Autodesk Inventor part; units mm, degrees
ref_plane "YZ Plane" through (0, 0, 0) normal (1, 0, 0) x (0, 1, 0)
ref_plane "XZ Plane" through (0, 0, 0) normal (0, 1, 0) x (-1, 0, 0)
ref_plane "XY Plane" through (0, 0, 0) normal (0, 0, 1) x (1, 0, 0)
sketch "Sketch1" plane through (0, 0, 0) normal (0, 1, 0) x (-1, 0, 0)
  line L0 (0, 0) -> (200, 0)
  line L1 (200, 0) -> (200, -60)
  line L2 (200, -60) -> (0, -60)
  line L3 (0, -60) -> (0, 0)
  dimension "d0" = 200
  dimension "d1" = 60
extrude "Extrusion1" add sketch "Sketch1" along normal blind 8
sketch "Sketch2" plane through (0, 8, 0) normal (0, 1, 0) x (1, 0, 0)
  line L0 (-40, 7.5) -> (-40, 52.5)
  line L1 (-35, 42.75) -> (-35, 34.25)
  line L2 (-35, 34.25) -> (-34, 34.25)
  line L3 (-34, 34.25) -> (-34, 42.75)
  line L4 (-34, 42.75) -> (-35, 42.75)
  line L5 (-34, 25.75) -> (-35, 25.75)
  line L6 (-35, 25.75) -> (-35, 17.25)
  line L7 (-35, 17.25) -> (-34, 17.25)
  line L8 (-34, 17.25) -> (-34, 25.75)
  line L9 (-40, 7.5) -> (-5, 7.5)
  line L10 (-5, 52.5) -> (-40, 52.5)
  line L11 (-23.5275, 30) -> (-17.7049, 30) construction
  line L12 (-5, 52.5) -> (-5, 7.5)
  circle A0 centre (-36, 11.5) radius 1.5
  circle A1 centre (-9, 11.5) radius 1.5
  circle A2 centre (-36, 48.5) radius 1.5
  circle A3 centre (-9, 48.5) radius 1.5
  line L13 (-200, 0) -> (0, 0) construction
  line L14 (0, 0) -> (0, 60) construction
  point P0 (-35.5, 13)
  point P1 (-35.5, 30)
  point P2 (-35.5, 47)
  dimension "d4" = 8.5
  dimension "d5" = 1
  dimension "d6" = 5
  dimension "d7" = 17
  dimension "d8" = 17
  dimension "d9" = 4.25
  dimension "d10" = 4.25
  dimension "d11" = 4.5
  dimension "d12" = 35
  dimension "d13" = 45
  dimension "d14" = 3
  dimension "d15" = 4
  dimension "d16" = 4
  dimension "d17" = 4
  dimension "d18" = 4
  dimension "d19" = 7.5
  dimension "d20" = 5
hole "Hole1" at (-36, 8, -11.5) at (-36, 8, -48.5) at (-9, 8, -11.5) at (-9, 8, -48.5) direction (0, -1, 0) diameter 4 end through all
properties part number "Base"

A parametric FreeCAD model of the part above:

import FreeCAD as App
import Part
import Sketcher
from FreeCAD import Vector
Q = App.Units.Quantity

doc = App.newDocument("Part")
body = doc.addObject("PartDesign::Body", "Body")

sketch1 = body.newObject("Sketcher::SketchObject", "Sketch")
sketch1.AttachmentSupport = (doc.getObject("XZ_Plane"), [""])
sketch1.MapMode = "FlatFace"
sketch1.addGeometry(Part.LineSegment(Vector(-200, 0, 0), Vector(0, 0, 0)), False)
sketch1.addGeometry(Part.LineSegment(Vector(0, 0, 0), Vector(0, -60, 0)), False)
sketch1.addGeometry(Part.LineSegment(Vector(0, -60, 0), Vector(-200, -60, 0)), False)
sketch1.addGeometry(Part.LineSegment(Vector(-200, -60, 0), Vector(-200, 0, 0)), False)
sketch1.addConstraint(Sketcher.Constraint("Coincident", 0, 2, 1, 1))
sketch1.addConstraint(Sketcher.Constraint("Coincident", 1, 2, 2, 1))
sketch1.addConstraint(Sketcher.Constraint("Coincident", 2, 2, 3, 1))
sketch1.addConstraint(Sketcher.Constraint("Coincident", 3, 2, 0, 1))
sketch1.addConstraint(Sketcher.Constraint("Horizontal", 0))
sketch1.addConstraint(Sketcher.Constraint("Vertical", 1))
sketch1.addConstraint(Sketcher.Constraint("Horizontal", 2))
sketch1.addConstraint(Sketcher.Constraint("Vertical", 3))
sketch1.addConstraint(Sketcher.Constraint("Coincident", 0, 2, -1, 1))
sketch1.addConstraint(Sketcher.Constraint("DistanceX", 0, 1, 0, 2, Q("200 mm")))
sketch1.addConstraint(Sketcher.Constraint("DistanceY", 1, 2, 1, 1, Q("60 mm")))
pad1 = body.newObject("PartDesign::Pad", "Pad")
pad1.Profile = sketch1
pad1.Length = 8
pad1.Reversed = True

sketch2 = body.newObject("Sketcher::SketchObject", "Sketch001")
sketch2.AttachmentSupport = (doc.getObject("XZ_Plane"), [""])
sketch2.MapMode = "FlatFace"
sketch2.AttachmentOffset = App.Placement(Vector(0, 0, -8), App.Rotation())
sketch2.addGeometry(Part.Circle(Vector(-36, -11.5, 0), Vector(0, 0, 1), 2), False)
sketch2.addGeometry(Part.Circle(Vector(-36, -48.5, 0), Vector(0, 0, 1), 2), False)
sketch2.addGeometry(Part.Circle(Vector(-9, -11.5, 0), Vector(0, 0, 1), 2), False)
sketch2.addGeometry(Part.Circle(Vector(-9, -48.5, 0), Vector(0, 0, 1), 2), False)
sketch2.addConstraint(Sketcher.Constraint("Equal", 0, 1))
sketch2.addConstraint(Sketcher.Constraint("Equal", 1, 2))
sketch2.addConstraint(Sketcher.Constraint("Equal", 2, 3))
sketch2.addConstraint(Sketcher.Constraint("Horizontal", 0, 3, 2, 3))
sketch2.addConstraint(Sketcher.Constraint("Horizontal", 1, 3, 3, 3))
sketch2.addConstraint(Sketcher.Constraint("Vertical", 0, 3, 1, 3))
sketch2.addConstraint(Sketcher.Constraint("Vertical", 2, 3, 3, 3))
sketch2.addConstraint(Sketcher.Constraint("Diameter", 0, Q("4 mm")))
sketch2.addConstraint(Sketcher.Constraint("DistanceX", 0, 3, -1, 1, Q("36 mm")))
sketch2.addConstraint(Sketcher.Constraint("DistanceX", 2, 3, -1, 1, Q("9 mm")))
sketch2.addConstraint(Sketcher.Constraint("DistanceY", 1, 3, 0, 3, Q("37 mm")))
sketch2.addConstraint(Sketcher.Constraint("DistanceY", 0, 3, -1, 1, Q("11.5 mm")))
doc.recompute()
hole = body.newObject("PartDesign::Hole", "Hole")
hole.Profile = sketch2
hole.ThreadType = "None"
hole.Diameter = 4
hole.DepthType = "ThroughAll"
hole.Reversed = True

doc.recompute()
